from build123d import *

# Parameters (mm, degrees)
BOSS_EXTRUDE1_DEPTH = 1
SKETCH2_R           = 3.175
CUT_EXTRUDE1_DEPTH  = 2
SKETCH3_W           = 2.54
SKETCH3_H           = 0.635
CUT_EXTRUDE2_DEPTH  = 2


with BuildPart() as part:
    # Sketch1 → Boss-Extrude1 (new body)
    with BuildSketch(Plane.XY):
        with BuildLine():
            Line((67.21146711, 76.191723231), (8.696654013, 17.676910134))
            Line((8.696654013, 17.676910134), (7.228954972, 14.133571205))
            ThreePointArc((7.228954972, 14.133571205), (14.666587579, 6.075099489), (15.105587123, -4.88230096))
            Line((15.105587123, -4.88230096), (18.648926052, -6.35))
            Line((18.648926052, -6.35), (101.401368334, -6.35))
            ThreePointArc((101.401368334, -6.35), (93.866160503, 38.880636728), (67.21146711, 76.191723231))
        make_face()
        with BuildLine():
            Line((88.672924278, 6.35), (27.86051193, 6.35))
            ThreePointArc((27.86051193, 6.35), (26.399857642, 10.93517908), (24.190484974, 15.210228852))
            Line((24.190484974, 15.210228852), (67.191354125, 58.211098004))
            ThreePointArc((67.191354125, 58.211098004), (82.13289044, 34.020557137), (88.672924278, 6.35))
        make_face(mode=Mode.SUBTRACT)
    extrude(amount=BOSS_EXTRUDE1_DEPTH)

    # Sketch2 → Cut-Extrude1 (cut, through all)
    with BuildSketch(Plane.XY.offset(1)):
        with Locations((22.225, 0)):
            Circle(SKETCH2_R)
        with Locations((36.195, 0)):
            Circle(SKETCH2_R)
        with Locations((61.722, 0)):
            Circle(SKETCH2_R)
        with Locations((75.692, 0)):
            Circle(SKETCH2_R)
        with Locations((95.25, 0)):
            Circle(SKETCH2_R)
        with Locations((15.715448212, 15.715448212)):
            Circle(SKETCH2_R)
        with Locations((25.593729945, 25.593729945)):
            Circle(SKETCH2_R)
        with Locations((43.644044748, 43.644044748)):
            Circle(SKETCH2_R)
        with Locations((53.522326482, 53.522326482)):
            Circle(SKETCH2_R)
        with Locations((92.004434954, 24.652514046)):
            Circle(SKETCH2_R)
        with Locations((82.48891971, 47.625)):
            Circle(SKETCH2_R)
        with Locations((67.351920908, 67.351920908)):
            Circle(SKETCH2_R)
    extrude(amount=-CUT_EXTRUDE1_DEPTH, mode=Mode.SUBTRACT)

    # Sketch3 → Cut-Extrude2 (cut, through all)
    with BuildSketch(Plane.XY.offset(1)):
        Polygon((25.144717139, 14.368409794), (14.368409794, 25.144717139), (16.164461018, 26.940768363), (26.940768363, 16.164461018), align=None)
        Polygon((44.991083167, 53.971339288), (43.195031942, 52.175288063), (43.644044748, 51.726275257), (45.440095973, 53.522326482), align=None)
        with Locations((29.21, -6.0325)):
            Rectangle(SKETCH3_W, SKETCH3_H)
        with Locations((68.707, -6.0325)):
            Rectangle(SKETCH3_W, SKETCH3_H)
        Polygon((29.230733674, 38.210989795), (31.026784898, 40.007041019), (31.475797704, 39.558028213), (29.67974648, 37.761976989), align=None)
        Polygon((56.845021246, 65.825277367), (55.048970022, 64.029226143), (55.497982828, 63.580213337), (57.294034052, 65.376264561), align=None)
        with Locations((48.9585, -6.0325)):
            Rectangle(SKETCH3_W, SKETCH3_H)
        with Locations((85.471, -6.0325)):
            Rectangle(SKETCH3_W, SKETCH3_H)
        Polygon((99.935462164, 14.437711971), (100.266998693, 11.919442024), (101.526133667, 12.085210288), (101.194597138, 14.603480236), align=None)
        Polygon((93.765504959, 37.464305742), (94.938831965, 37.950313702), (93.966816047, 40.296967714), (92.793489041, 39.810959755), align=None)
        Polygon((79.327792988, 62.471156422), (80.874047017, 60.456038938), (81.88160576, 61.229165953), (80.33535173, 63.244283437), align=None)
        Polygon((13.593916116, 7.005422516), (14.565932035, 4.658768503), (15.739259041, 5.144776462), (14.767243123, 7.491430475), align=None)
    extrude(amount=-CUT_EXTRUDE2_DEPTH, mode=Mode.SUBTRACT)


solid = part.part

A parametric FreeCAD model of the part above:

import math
import FreeCAD as App
import Part
import Sketcher
from FreeCAD import Vector
Q = App.Units.Quantity

doc = App.newDocument("Part")
body = doc.addObject("PartDesign::Body", "Body")

sketch1 = body.newObject("Sketcher::SketchObject", "Sketch")
sketch1.AttachmentSupport = (doc.getObject("XY_Plane"), [""])
sketch1.MapMode = "FlatFace"
sketch1.addGeometry(Part.LineSegment(Vector(67.2, 76.2, 0), Vector(8.7, 17.7, 0)), False)
sketch1.addGeometry(Part.LineSegment(Vector(8.7, 17.7, 0), Vector(7.2, 14.1, 0)), False)
sketch1.addGeometry(Part.ArcOfCircle(Part.Circle(Vector(0, 0, 0), Vector(0, 0, 1), 15.9), math.radians(-18), math.radians(63)), False)
sketch1.addGeometry(Part.LineSegment(Vector(15.1, -4.9, 0), Vector(18.6, -6.3, 0)), False)
sketch1.addGeometry(Part.LineSegment(Vector(18.6, -6.3, 0), Vector(101.4, -6.3, 0)), False)
sketch1.addGeometry(Part.ArcOfCircle(Part.Circle(Vector(0, 0, 0), Vector(0, 0, 1), 101.6), math.radians(-4), math.radians(49)), False)
sketch1.addGeometry(Part.ArcOfCircle(Part.Circle(Vector(0, 0, 0), Vector(0, 0, 1), 88.9), math.radians(4), math.radians(41)), False)
sketch1.addGeometry(Part.LineSegment(Vector(88.7, 6.3, 0), Vector(27.9, 6.3, 0)), False)
sketch1.addGeometry(Part.ArcOfCircle(Part.Circle(Vector(0, 0, 0), Vector(0, 0, 1), 28.6), math.radians(12.84), math.radians(32.16)), False)
sketch1.addGeometry(Part.LineSegment(Vector(24.2, 15.2, 0), Vector(67.2, 58.2, 0)), False)
sketch1.addConstraint(Sketcher.Constraint("Coincident", 0, 2, 1, 1))
sketch1.addConstraint(Sketcher.Constraint("Coincident", 1, 2, 2, 2))
sketch1.addConstraint(Sketcher.Constraint("Coincident", 2, 1, 3, 1))
sketch1.addConstraint(Sketcher.Constraint("Coincident", 3, 2, 4, 1))
sketch1.addConstraint(Sketcher.Constraint("Coincident", 4, 2, 5, 1))
sketch1.addConstraint(Sketcher.Constraint("Coincident", 5, 2, 0, 1))
sketch1.addConstraint(Sketcher.Constraint("Coincident", 6, 1, 7, 1))
sketch1.addConstraint(Sketcher.Constraint("Coincident", 7, 2, 8, 1))
sketch1.addConstraint(Sketcher.Constraint("Coincident", 8, 2, 9, 1))
sketch1.addConstraint(Sketcher.Constraint("Coincident", 9, 2, 6, 2))
sketch1.addConstraint(Sketcher.Constraint("Horizontal", 4))
sketch1.addConstraint(Sketcher.Constraint("Horizontal", 7))
sketch1.addConstraint(Sketcher.Constraint("Coincident", 2, 3, -1, 1))
sketch1.addConstraint(Sketcher.Constraint("Coincident", 5, 3, -1, 1))
sketch1.addConstraint(Sketcher.Constraint("Coincident", 6, 3, -1, 1))
sketch1.addConstraint(Sketcher.Constraint("Coincident", 8, 3, -1, 1))
sketch1.addConstraint(Sketcher.Constraint("Perpendicular", 1, 3))
sketch1.addConstraint(Sketcher.Constraint("Parallel", 0, 9))
sketch1.addConstraint(Sketcher.Constraint("Equal", 1, 3))
sketch1.addConstraint(Sketcher.Constraint("Radius", 5, Q("4 in")))
sketch1.addConstraint(Sketcher.Constraint("Radius", 6, Q("3.5 in")))
sketch1.addConstraint(Sketcher.Constraint("Angle", 0, Q("-135 deg")))
sketch1.addConstraint(Sketcher.Constraint("Radius", 2, Q("0.625 in")))
sketch1.addConstraint(Sketcher.Constraint("Radius", 8, Q("1.125 in")))
sketch1.addConstraint(Sketcher.Constraint("Angle", 1, Q("-112.5 deg")))
sketch1.addConstraint(Sketcher.Constraint("DistanceY", 4, 2, 6, 1, Q("0.5 in")))
sketch1.addConstraint(Sketcher.Constraint("DistanceY", 3, 2, -1, 1, Q("0.25 in")))
sketch1.addConstraint(Sketcher.Constraint("DistanceY", 2, 1, -1, 1, 4.882301))
sketch1.addConstraint(Sketcher.Constraint("DistanceY", -1, 1, 9, 2, 58.211098))
sketch1.addConstraint(Sketcher.Constraint("DistanceX", 5, 2, 4, 2, 34.189901))
pad1 = body.newObject("PartDesign::Pad", "Pad")
pad1.Profile = sketch1
pad1.Length = 1

sketch2 = body.newObject("Sketcher::SketchObject", "Sketch001")
sketch2.AttachmentSupport = (doc.getObject("XY_Plane"), [""])
sketch2.MapMode = "FlatFace"
sketch2.AttachmentOffset = App.Placement(Vector(0, 0, 1), App.Rotation())
sketch2.addGeometry(Part.Circle(Vector(22.2, 0, 0), Vector(0, 0, 1), 3.2), False)
sketch2.addGeometry(Part.Circle(Vector(36.2, 0, 0), Vector(0, 0, 1), 3.2), False)
sketch2.addGeometry(Part.Circle(Vector(61.7, 0, 0), Vector(0, 0, 1), 3.2), False)
sketch2.addGeometry(Part.Circle(Vector(75.7, 0, 0), Vector(0, 0, 1), 3.2), False)
sketch2.addGeometry(Part.Circle(Vector(95.2, 0, 0), Vector(0, 0, 1), 3.2), False)
sketch2.addGeometry(Part.Circle(Vector(15.7, 15.7, 0), Vector(0, 0, 1), 3.2), False)
sketch2.addGeometry(Part.Circle(Vector(25.6, 25.6, 0), Vector(0, 0, 1), 3.2), False)
sketch2.addGeometry(Part.Circle(Vector(43.6, 43.6, 0), Vector(0, 0, 1), 3.2), False)
sketch2.addGeometry(Part.Circle(Vector(53.5, 53.5, 0), Vector(0, 0, 1), 3.2), False)
sketch2.addGeometry(Part.Circle(Vector(92, 24.7, 0), Vector(0, 0, 1), 3.2), False)
sketch2.addGeometry(Part.Circle(Vector(82.5, 47.6, 0), Vector(0, 0, 1), 3.2), False)
sketch2.addGeometry(Part.Circle(Vector(67.4, 67.4, 0), Vector(0, 0, 1), 3.2), False)
sketch2.addConstraint(Sketcher.Constraint("Equal", 0, 1))
sketch2.addConstraint(Sketcher.Constraint("Equal", 1, 2))
sketch2.addConstraint(Sketcher.Constraint("Equal", 2, 3))
sketch2.addConstraint(Sketcher.Constraint("Equal", 3, 4))
sketch2.addConstraint(Sketcher.Constraint("Equal", 4, 5))
sketch2.addConstraint(Sketcher.Constraint("Equal", 5, 6))
sketch2.addConstraint(Sketcher.Constraint("Equal", 6, 7))
sketch2.addConstraint(Sketcher.Constraint("Equal", 7, 8))
sketch2.addConstraint(Sketcher.Constraint("Equal", 8, 9))
sketch2.addConstraint(Sketcher.Constraint("Equal", 9, 10))
sketch2.addConstraint(Sketcher.Constraint("Equal", 10, 11))
sketch2.addConstraint(Sketcher.Constraint("PointOnObject", 0, 3, -1))
sketch2.addConstraint(Sketcher.Constraint("PointOnObject", 1, 3, -1))
sketch2.addConstraint(Sketcher.Constraint("PointOnObject", 2, 3, -1))
sketch2.addConstraint(Sketcher.Constraint("PointOnObject", 3, 3, -1))
sketch2.addConstraint(Sketcher.Constraint("PointOnObject", 4, 3, -1))
sketch2.addConstraint(Sketcher.Constraint("Diameter", 0, Q("0.25 in")))
sketch2.addConstraint(Sketcher.Constraint("DistanceX", -1, 1, 2, 3, Q("2.43 in")))
sketch2.addConstraint(Sketcher.Constraint("DistanceX", -1, 1, 3, 3, Q("2.98 in")))
sketch2.addConstraint(Sketcher.Constraint("DistanceX", -1, 1, 4, 3, Q("3.75 in")))
sketch2.addConstraint(Sketcher.Constraint("DistanceX", 0, 3, 1, 3, Q("0.55 in")))
sketch2.addConstraint(Sketcher.Constraint("DistanceX", -1, 1, 0, 3, Q("0.875 in")))
sketch2.addConstraint(Sketcher.Constraint("DistanceY", -1, 1, 10, 3, Q("1.875 in")))
sketch2.addConstraint(Sketcher.Constraint("DistanceX", 11, 3, 10, 3, 15.136999))
sketch2.addConstraint(Sketcher.Constraint("DistanceX", -1, 1, 5, 3, 15.715448))
sketch2.addConstraint(Sketcher.Constraint("DistanceY", -1, 1, 5, 3, 15.715448))
sketch2.addConstraint(Sketcher.Constraint("DistanceX", -1, 1, 6, 3, 25.59373))
sketch2.addConstraint(Sketcher.Constraint("DistanceY", -1, 1, 6, 3, 25.59373))
sketch2.addConstraint(Sketcher.Constraint("DistanceX", -1, 1, 10, 3, 82.48892))
sketch2.addConstraint(Sketcher.Constraint("DistanceY", -1, 1, 11, 3, 67.351921))
sketch2.addConstraint(Sketcher.Constraint("DistanceX", 7, 3, 8, 3, 9.878282))
sketch2.addConstraint(Sketcher.Constraint("DistanceY", 7, 3, 8, 3, 9.878282))
sketch2.addConstraint(Sketcher.Constraint("DistanceX", 5, 3, 8, 3, 37.806878))
sketch2.addConstraint(Sketcher.Constraint("DistanceY", 5, 3, 8, 3, 37.806878))
sketch2.addConstraint(Sketcher.Constraint("DistanceX", 8, 3, 9, 3, 38.482108))
sketch2.addConstraint(Sketcher.Constraint("DistanceY", 9, 3, 7, 3, 18.991531))
pocket1 = body.newObject("PartDesign::Pocket", "Pocket")
pocket1.Profile = sketch2
pocket1.Type = "ThroughAll"

sketch3 = body.newObject("Sketcher::SketchObject", "Sketch002")
sketch3.AttachmentSupport = (doc.getObject("XY_Plane"), [""])
sketch3.MapMode = "FlatFace"
sketch3.AttachmentOffset = App.Placement(Vector(0, 0, 1), App.Rotation())
sketch3.addGeometry(Part.LineSegment(Vector(14.4, 25.1, 0), Vector(25.1, 14.4, 0)), False)
sketch3.addGeometry(Part.LineSegment(Vector(25.1, 14.4, 0), Vector(26.9, 16.2, 0)), False)
sketch3.addGeometry(Part.LineSegment(Vector(26.9, 16.2, 0), Vector(16.2, 26.9, 0)), False)
sketch3.addGeometry(Part.LineSegment(Vector(16.2, 26.9, 0), Vector(14.4, 25.1, 0)), False)
sketch3.addGeometry(Part.LineSegment(Vector(45, 54, 0), Vector(43.2, 52.2, 0)), False)
sketch3.addGeometry(Part.LineSegment(Vector(43.2, 52.2, 0), Vector(43.6, 51.7, 0)), False)
sketch3.addGeometry(Part.LineSegment(Vector(43.6, 51.7, 0), Vector(45.4, 53.5, 0)), False)
sketch3.addGeometry(Part.LineSegment(Vector(45.4, 53.5, 0), Vector(45, 54, 0)), False)
sketch3.addGeometry(Part.LineSegment(Vector(27.9, -5.7, 0), Vector(27.9, -6.3, 0)), False)
sketch3.addGeometry(Part.LineSegment(Vector(27.9, -6.3, 0), Vector(30.5, -6.3, 0)), False)
sketch3.addGeometry(Part.LineSegment(Vector(30.5, -6.3, 0), Vector(30.5, -5.7, 0)), False)
sketch3.addGeometry(Part.LineSegment(Vector(30.5, -5.7, 0), Vector(27.9, -5.7, 0)), False)
sketch3.addGeometry(Part.LineSegment(Vector(67.4, -5.7, 0), Vector(67.4, -6.3, 0)), False)
sketch3.addGeometry(Part.LineSegment(Vector(67.4, -6.3, 0), Vector(70, -6.3, 0)), False)
sketch3.addGeometry(Part.LineSegment(Vector(70, -6.3, 0), Vector(70, -5.7, 0)), False)
sketch3.addGeometry(Part.LineSegment(Vector(70, -5.7, 0), Vector(67.4, -5.7, 0)), False)
sketch3.addGeometry(Part.LineSegment(Vector(31, 40, 0), Vector(29.2, 38.2, 0)), False)
sketch3.addGeometry(Part.LineSegment(Vector(29.2, 38.2, 0), Vector(29.7, 37.8, 0)), False)
sketch3.addGeometry(Part.LineSegment(Vector(29.7, 37.8, 0), Vector(31.5, 39.6, 0)), False)
sketch3.addGeometry(Part.LineSegment(Vector(31.5, 39.6, 0), Vector(31, 40, 0)), False)
sketch3.addGeometry(Part.LineSegment(Vector(56.8, 65.8, 0), Vector(55, 64, 0)), False)
sketch3.addGeometry(Part.LineSegment(Vector(55, 64, 0), Vector(55.5, 63.6, 0)), False)
sketch3.addGeometry(Part.LineSegment(Vector(55.5, 63.6, 0), Vector(57.3, 65.4, 0)), False)
sketch3.addGeometry(Part.LineSegment(Vector(57.3, 65.4, 0), Vector(56.8, 65.8, 0)), False)
sketch3.addGeometry(Part.LineSegment(Vector(47.7, -5.7, 0), Vector(47.7, -6.3, 0)), False)
sketch3.addGeometry(Part.LineSegment(Vector(47.7, -6.3, 0), Vector(50.2, -6.3, 0)), False)
sketch3.addGeometry(Part.LineSegment(Vector(50.2, -6.3, 0), Vector(50.2, -5.7, 0)), False)
sketch3.addGeometry(Part.LineSegment(Vector(50.2, -5.7, 0), Vector(47.7, -5.7, 0)), False)
sketch3.addGeometry(Part.LineSegment(Vector(84.2, -5.7, 0), Vector(84.2, -6.3, 0)), False)
sketch3.addGeometry(Part.LineSegment(Vector(84.2, -6.3, 0), Vector(86.7, -6.3, 0)), False)
sketch3.addGeometry(Part.LineSegment(Vector(86.7, -6.3, 0), Vector(86.7, -5.7, 0)), False)
sketch3.addGeometry(Part.LineSegment(Vector(86.7, -5.7, 0), Vector(84.2, -5.7, 0)), False)
sketch3.addGeometry(Part.LineSegment(Vector(99.9, 14.4, 0), Vector(100.3, 11.9, 0)), False)
sketch3.addGeometry(Part.LineSegment(Vector(100.3, 11.9, 0), Vector(101.5, 12.1, 0)), False)
sketch3.addGeometry(Part.LineSegment(Vector(101.5, 12.1, 0), Vector(101.2, 14.6, 0)), False)
sketch3.addGeometry(Part.LineSegment(Vector(101.2, 14.6, 0), Vector(99.9, 14.4, 0)), False)
sketch3.addGeometry(Part.LineSegment(Vector(93.8, 37.5, 0), Vector(94.9, 38, 0)), False)
sketch3.addGeometry(Part.LineSegment(Vector(94.9, 38, 0), Vector(94, 40.3, 0)), False)
sketch3.addGeometry(Part.LineSegment(Vector(94, 40.3, 0), Vector(92.8, 39.8, 0)), False)
sketch3.addGeometry(Part.LineSegment(Vector(92.8, 39.8, 0), Vector(93.8, 37.5, 0)), False)
sketch3.addGeometry(Part.LineSegment(Vector(79.3, 62.5, 0), Vector(80.9, 60.5, 0)), False)
sketch3.addGeometry(Part.LineSegment(Vector(80.9, 60.5, 0), Vector(81.9, 61.2, 0)), False)
sketch3.addGeometry(Part.LineSegment(Vector(81.9, 61.2, 0), Vector(80.3, 63.2, 0)), False)
sketch3.addGeometry(Part.LineSegment(Vector(80.3, 63.2, 0), Vector(79.3, 62.5, 0)), False)
sketch3.addGeometry(Part.LineSegment(Vector(13.6, 7, 0), Vector(14.6, 4.7, 0)), False)
sketch3.addGeometry(Part.LineSegment(Vector(14.6, 4.7, 0), Vector(15.7, 5.1, 0)), False)
sketch3.addGeometry(Part.LineSegment(Vector(15.7, 5.1, 0), Vector(14.8, 7.5, 0)), False)
sketch3.addGeometry(Part.LineSegment(Vector(14.8, 7.5, 0), Vector(13.6, 7, 0)), False)
sketch3.addConstraint(Sketcher.Constraint("Coincident", 0, 2, 1, 1))
sketch3.addConstraint(Sketcher.Constraint("Coincident", 1, 2, 2, 1))
sketch3.addConstraint(Sketcher.Constraint("Coincident", 2, 2, 3, 1))
sketch3.addConstraint(Sketcher.Constraint("Coincident", 3, 2, 0, 1))
sketch3.addConstraint(Sketcher.Constraint("Coincident", 4, 2, 5, 1))
sketch3.addConstraint(Sketcher.Constraint("Coincident", 5, 2, 6, 1))
sketch3.addConstraint(Sketcher.Constraint("Coincident", 6, 2, 7, 1))
sketch3.addConstraint(Sketcher.Constraint("Coincident", 7, 2, 4, 1))
sketch3.addConstraint(Sketcher.Constraint("Coincident", 8, 2, 9, 1))
sketch3.addConstraint(Sketcher.Constraint("Coincident", 9, 2, 10, 1))
sketch3.addConstraint(Sketcher.Constraint("Coincident", 10, 2, 11, 1))
sketch3.addConstraint(Sketcher.Constraint("Coincident", 11, 2, 8, 1))
sketch3.addConstraint(Sketcher.Constraint("Coincident", 12, 2, 13, 1))
sketch3.addConstraint(Sketcher.Constraint("Coincident", 13, 2, 14, 1))
sketch3.addConstraint(Sketcher.Constraint("Coincident", 14, 2, 15, 1))
sketch3.addConstraint(Sketcher.Constraint("Coincident", 15, 2, 12, 1))
sketch3.addConstraint(Sketcher.Constraint("Coincident", 16, 2, 17, 1))
sketch3.addConstraint(Sketcher.Constraint("Coincident", 17, 2, 18, 1))
sketch3.addConstraint(Sketcher.Constraint("Coincident", 18, 2, 19, 1))
sketch3.addConstraint(Sketcher.Constraint("Coincident", 19, 2, 16, 1))
sketch3.addConstraint(Sketcher.Constraint("Coincident", 20, 2, 21, 1))
sketch3.addConstraint(Sketcher.Constraint("Coincident", 21, 2, 22, 1))
sketch3.addConstraint(Sketcher.Constraint("Coincident", 22, 2, 23, 1))
sketch3.addConstraint(Sketcher.Constraint("Coincident", 23, 2, 20, 1))
sketch3.addConstraint(Sketcher.Constraint("Coincident", 24, 2, 25, 1))
sketch3.addConstraint(Sketcher.Constraint("Coincident", 25, 2, 26, 1))
sketch3.addConstraint(Sketcher.Constraint("Coincident", 26, 2, 27, 1))
sketch3.addConstraint(Sketcher.Constraint("Coincident", 27, 2, 24, 1))
sketch3.addConstraint(Sketcher.Constraint("Coincident", 28, 2, 29, 1))
sketch3.addConstraint(Sketcher.Constraint("Coincident", 29, 2, 30, 1))
sketch3.addConstraint(Sketcher.Constraint("Coincident", 30, 2, 31, 1))
sketch3.addConstraint(Sketcher.Constraint("Coincident", 31, 2, 28, 1))
sketch3.addConstraint(Sketcher.Constraint("Coincident", 32, 2, 33, 1))
sketch3.addConstraint(Sketcher.Constraint("Coincident", 33, 2, 34, 1))
sketch3.addConstraint(Sketcher.Constraint("Coincident", 34, 2, 35, 1))
sketch3.addConstraint(Sketcher.Constraint("Coincident", 35, 2, 32, 1))
sketch3.addConstraint(Sketcher.Constraint("Coincident", 36, 2, 37, 1))
sketch3.addConstraint(Sketcher.Constraint("Coincident", 37, 2, 38, 1))
sketch3.addConstraint(Sketcher.Constraint("Coincident", 38, 2, 39, 1))
sketch3.addConstraint(Sketcher.Constraint("Coincident", 39, 2, 36, 1))
sketch3.addConstraint(Sketcher.Constraint("Coincident", 40, 2, 41, 1))
sketch3.addConstraint(Sketcher.Constraint("Coincident", 41, 2, 42, 1))
sketch3.addConstraint(Sketcher.Constraint("Coincident", 42, 2, 43, 1))
sketch3.addConstraint(Sketcher.Constraint("Coincident", 43, 2, 40, 1))
sketch3.addConstraint(Sketcher.Constraint("Coincident", 44, 2, 45, 1))
sketch3.addConstraint(Sketcher.Constraint("Coincident", 45, 2, 46, 1))
sketch3.addConstraint(Sketcher.Constraint("Coincident", 46, 2, 47, 1))
sketch3.addConstraint(Sketcher.Constraint("Coincident", 47, 2, 44, 1))
sketch3.addConstraint(Sketcher.Constraint("Vertical", 8))
sketch3.addConstraint(Sketcher.Constraint("Horizontal", 9))
sketch3.addConstraint(Sketcher.Constraint("Vertical", 10))
sketch3.addConstraint(Sketcher.Constraint("Horizontal", 11))
sketch3.addConstraint(Sketcher.Constraint("Vertical", 12))
sketch3.addConstraint(Sketcher.Constraint("Horizontal", 13))
sketch3.addConstraint(Sketcher.Constraint("Vertical", 14))
sketch3.addConstraint(Sketcher.Constraint("Horizontal", 15))
sketch3.addConstraint(Sketcher.Constraint("Vertical", 24))
sketch3.addConstraint(Sketcher.Constraint("Horizontal", 25))
sketch3.addConstraint(Sketcher.Constraint("Vertical", 26))
sketch3.addConstraint(Sketcher.Constraint("Horizontal", 27))
sketch3.addConstraint(Sketcher.Constraint("Vertical", 28))
sketch3.addConstraint(Sketcher.Constraint("Horizontal", 29))
sketch3.addConstraint(Sketcher.Constraint("Vertical", 30))
sketch3.addConstraint(Sketcher.Constraint("Horizontal", 31))
sketch3.addConstraint(Sketcher.Constraint("Perpendicular", 0, 1))
sketch3.addConstraint(Sketcher.Constraint("Perpendicular", 1, 2))
sketch3.addConstraint(Sketcher.Constraint("Perpendicular", 2, 3))
sketch3.addConstraint(Sketcher.Constraint("Parallel", 3, 4))
sketch3.addConstraint(Sketcher.Constraint("Perpendicular", 4, 5))
sketch3.addConstraint(Sketcher.Constraint("Perpendicular", 5, 6))
sketch3.addConstraint(Sketcher.Constraint("Perpendicular", 6, 7))
sketch3.addConstraint(Sketcher.Constraint("Perpendicular", 7, 16))
sketch3.addConstraint(Sketcher.Constraint("Perpendicular", 16, 17))
sketch3.addConstraint(Sketcher.Constraint("Perpendicular", 17, 18))
sketch3.addConstraint(Sketcher.Constraint("Perpendicular", 18, 19))
sketch3.addConstraint(Sketcher.Constraint("Perpendicular", 19, 20))
sketch3.addConstraint(Sketcher.Constraint("Perpendicular", 20, 21))
sketch3.addConstraint(Sketcher.Constraint("Perpendicular", 21, 22))
sketch3.addConstraint(Sketcher.Constraint("Perpendicular", 22, 23))
sketch3.addConstraint(Sketcher.Constraint("Perpendicular", 32, 33))
sketch3.addConstraint(Sketcher.Constraint("Perpendicular", 33, 34))
sketch3.addConstraint(Sketcher.Constraint("Perpendicular", 34, 35))
sketch3.addConstraint(Sketcher.Constraint("Perpendicular", 36, 37))
sketch3.addConstraint(Sketcher.Constraint("Perpendicular", 37, 38))
sketch3.addConstraint(Sketcher.Constraint("Perpendicular", 38, 39))
sketch3.addConstraint(Sketcher.Constraint("Perpendicular", 40, 41))
sketch3.addConstraint(Sketcher.Constraint("Perpendicular", 41, 42))
sketch3.addConstraint(Sketcher.Constraint("Perpendicular", 42, 43))
sketch3.addConstraint(Sketcher.Constraint("Parallel", 39, 44))
sketch3.addConstraint(Sketcher.Constraint("Perpendicular", 44, 45))
sketch3.addConstraint(Sketcher.Constraint("Perpendicular", 45, 46))
sketch3.addConstraint(Sketcher.Constraint("Perpendicular", 46, 47))
sketch3.addConstraint(Sketcher.Constraint("Horizontal", 9, 2, 12, 2))
sketch3.addConstraint(Sketcher.Constraint("Horizontal", 11, 2, 14, 2))
sketch3.addConstraint(Sketcher.Constraint("Horizontal", 13, 2, 24, 2))
sketch3.addConstraint(Sketcher.Constraint("Horizontal", 15, 2, 26, 2))
sketch3.addConstraint(Sketcher.Constraint("Horizontal", 25, 2, 28, 2))
sketch3.addConstraint(Sketcher.Constraint("Horizontal", 27, 2, 30, 2))
sketch3.addConstraint(Sketcher.Constraint("Equal", 11, 13))
sketch3.addConstraint(Sketcher.Constraint("Equal", 15, 25))
sketch3.addConstraint(Sketcher.Constraint("Equal", 27, 29))
sketch3.addConstraint(Sketcher.Constraint("Equal", 3, 4))
sketch3.addConstraint(Sketcher.Constraint("Equal", 6, 16))
sketch3.addConstraint(Sketcher.Constraint("Equal", 7, 17))
sketch3.addConstraint(Sketcher.Constraint("Equal", 18, 20))
sketch3.addConstraint(Sketcher.Constraint("Equal", 19, 21))
sketch3.addConstraint(Sketcher.Constraint("Equal", 22, 32))
sketch3.addConstraint(Sketcher.Constraint("Equal", 35, 36))
sketch3.addConstraint(Sketcher.Constraint("Equal", 34, 37))
sketch3.addConstraint(Sketcher.Constraint("Equal", 39, 40))
sketch3.addConstraint(Sketcher.Constraint("Equal", 38, 41))
sketch3.addConstraint(Sketcher.Constraint("Equal", 42, 44))
sketch3.addConstraint(Sketcher.Constraint("Equal", 43, 45))
sketch3.addConstraint(Sketcher.Constraint("DistanceX", 9, 1, 9, 2, Q("0.1 in")))
sketch3.addConstraint(Sketcher.Constraint("Angle", 0, Q("-45 deg")))
sketch3.addConstraint(Sketcher.Constraint("Distance", 0, Q("0.6 in")))
sketch3.addConstraint(Sketcher.Constraint("Distance", 1, Q("0.1 in")))
sketch3.addConstraint(Sketcher.Constraint("DistanceX", -1, 1, 8, 2, Q("1.1 in")))
sketch3.addConstraint(Sketcher.Constraint("Angle", 32, Q("-82.5 deg")))
sketch3.addConstraint(Sketcher.Constraint("Angle", 36, Q("22.5 deg")))
sketch3.addConstraint(Sketcher.Constraint("Angle", 40, Q("-52.5 deg")))
sketch3.addConstraint(Sketcher.Constraint("Distance", 33, Q("0.05 in")))
sketch3.addConstraint(Sketcher.Constraint("DistanceY", 8, 2, 8, 1, Q("0.025 in")))
sketch3.addConstraint(Sketcher.Constraint("DistanceY", 8, 2, -1, 1, Q("0.25 in")))
sketch3.addConstraint(Sketcher.Constraint("DistanceX", 13, 2, 28, 2, Q("0.56 in")))
sketch3.addConstraint(Sketcher.Constraint("Distance", 5, Q("0.025 in")))
sketch3.addConstraint(Sketcher.Constraint("DistanceX", -1, 1, 12, 2, Q("2.655 in")))
sketch3.addConstraint(Sketcher.Constraint("DistanceX", -1, 1, 24, 2, Q("1.8775 in")))
sketch3.addConstraint(Sketcher.Constraint("DistanceX", -1, 1, 32, 2, 100.266999))
sketch3.addConstraint(Sketcher.Constraint("DistanceX", 16, 2, 4, 2, 13.964298))
sketch3.addConstraint(Sketcher.Constraint("DistanceY", 16, 2, 4, 2, 13.964298))
sketch3.addConstraint(Sketcher.Constraint("DistanceY", 6, 2, 20, 2, 10.5069))
sketch3.addConstraint(Sketcher.Constraint("DistanceX", 7, 2, 21, 2, 10.5069))
sketch3.addConstraint(Sketcher.Constraint("DistanceY", 35, 2, 36, 2, 23.512602))
sketch3.addConstraint(Sketcher.Constraint("DistanceX", 36, 2, 33, 2, 6.587302))
sketch3.addConstraint(Sketcher.Constraint("DistanceY", 37, 2, 41, 2, 20.932198))
sketch3.addConstraint(Sketcher.Constraint("DistanceY", 41, 2, 22, 2, 4.147099))
sketch3.addConstraint(Sketcher.Constraint("DistanceX", 47, 2, 0, 2, 11.550801))
sketch3.addConstraint(Sketcher.Constraint("DistanceY", -1, 1, 0, 2, 14.36841))
sketch3.addConstraint(Sketcher.Constraint("DistanceX", -1, 1, 1, 2, 26.940768))
sketch3.addConstraint(Sketcher.Constraint("DistanceX", -1, 1, 4, 2, 43.195032))
sketch3.addConstraint(Sketcher.Constraint("DistanceY", -1, 1, 4, 2, 52.175288))
sketch3.addConstraint(Sketcher.Constraint("DistanceX", -1, 1, 42, 2, 80.335352))
sketch3.addConstraint(Sketcher.Constraint("DistanceY", -1, 1, 44, 2, 4.658769))
pocket2 = body.newObject("PartDesign::Pocket", "Pocket001")
pocket2.Profile = sketch3
pocket2.Type = "ThroughAll"

doc.recompute()
